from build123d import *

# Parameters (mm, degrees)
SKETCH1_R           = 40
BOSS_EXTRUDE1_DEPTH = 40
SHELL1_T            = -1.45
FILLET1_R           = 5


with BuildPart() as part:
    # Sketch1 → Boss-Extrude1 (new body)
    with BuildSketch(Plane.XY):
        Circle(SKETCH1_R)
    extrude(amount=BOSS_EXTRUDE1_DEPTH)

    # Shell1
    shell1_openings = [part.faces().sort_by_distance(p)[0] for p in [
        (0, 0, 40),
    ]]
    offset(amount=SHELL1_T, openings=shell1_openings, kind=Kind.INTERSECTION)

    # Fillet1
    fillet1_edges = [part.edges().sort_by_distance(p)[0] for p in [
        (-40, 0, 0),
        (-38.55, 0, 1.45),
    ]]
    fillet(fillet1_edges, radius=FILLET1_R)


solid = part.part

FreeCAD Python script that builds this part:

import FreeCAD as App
import Part
import Sketcher
from FreeCAD import Vector


def edges_at(feature, points):
    """Names of the edges that pass closest to the given points."""
    edges = feature.Shape.Edges
    near = lambda p: min(range(len(edges)), key=lambda i: edges[i].distToShape(Part.Vertex(*p))[0])
    return sorted({f"Edge{near(p) + 1}" for p in points})


def faces_at(feature, points):
    """Names of the faces that lie closest to the given points."""
    faces = feature.Shape.Faces
    near = lambda p: min(range(len(faces)), key=lambda i: faces[i].distToShape(Part.Vertex(*p))[0])
    return sorted({f"Face{near(p) + 1}" for p in points})

doc = App.newDocument("Part")
body = doc.addObject("PartDesign::Body", "Body")

# Sketch on XY plane
sketch1 = body.newObject("Sketcher::SketchObject", "Sketch")
sketch1.AttachmentSupport = (doc.getObject("XY_Plane"), [""])
sketch1.MapMode = "FlatFace"
sketch1.addGeometry(Part.Circle(Vector(0, 0, 0), Vector(0, 0, 1), 40), False)
sketch1.addConstraint(Sketcher.Constraint("Coincident", 0, 3, -1, 1))
sketch1.addConstraint(Sketcher.Constraint("Diameter", 0, 80.0))
pad1 = body.newObject("PartDesign::Pad", "Pad")
pad1.Profile = sketch1
pad1.Length = 40
doc.recompute()

thickness = body.newObject("PartDesign::Thickness", "Thickness")
thickness.Base = (pad1, faces_at(pad1, [(0, 0, 40)]))
thickness.Value = 1.45
thickness.Reversed = True
thickness.Join = "Intersection"
doc.recompute()

fillet = body.newObject("PartDesign::Fillet", "Fillet")
fillet.Base = (thickness, edges_at(thickness, [(-40, 0, 0), (-38.55, 0, 1.45)]))
fillet.Radius = 5

doc.recompute()
